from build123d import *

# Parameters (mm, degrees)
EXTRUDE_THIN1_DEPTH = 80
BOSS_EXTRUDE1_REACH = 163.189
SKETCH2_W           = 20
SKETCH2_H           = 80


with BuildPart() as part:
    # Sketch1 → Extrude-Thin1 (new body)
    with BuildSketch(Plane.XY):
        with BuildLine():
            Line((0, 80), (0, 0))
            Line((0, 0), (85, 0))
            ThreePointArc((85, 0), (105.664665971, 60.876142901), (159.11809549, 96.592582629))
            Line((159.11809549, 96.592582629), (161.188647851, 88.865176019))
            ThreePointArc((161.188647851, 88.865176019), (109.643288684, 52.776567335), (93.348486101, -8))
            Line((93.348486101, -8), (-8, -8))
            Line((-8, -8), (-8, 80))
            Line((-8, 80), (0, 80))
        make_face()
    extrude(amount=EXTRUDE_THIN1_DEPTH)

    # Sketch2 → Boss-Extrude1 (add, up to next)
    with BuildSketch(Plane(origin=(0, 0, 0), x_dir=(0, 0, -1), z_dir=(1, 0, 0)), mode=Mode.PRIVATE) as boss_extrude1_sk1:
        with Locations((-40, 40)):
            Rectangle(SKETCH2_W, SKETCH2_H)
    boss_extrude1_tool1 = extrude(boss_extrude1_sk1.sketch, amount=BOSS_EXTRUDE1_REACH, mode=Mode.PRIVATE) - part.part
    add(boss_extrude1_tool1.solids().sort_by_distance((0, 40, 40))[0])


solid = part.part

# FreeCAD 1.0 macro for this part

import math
import FreeCAD as App
import Part
import Sketcher

V = App.Vector
Q = App.Units.Quantity

doc = App.newDocument("Part")
body = doc.addObject("PartDesign::Body", "Body")

sketch1 = body.newObject("Sketcher::SketchObject", "Sketch")
sketch1.AttachmentSupport = (doc.getObject("XY_Plane"), [""])
sketch1.MapMode = "FlatFace"
sketch1.addGeometry([
    Part.LineSegment(V(0, 0, 0), V(0, 80, 0)),
    Part.LineSegment(V(0, 80, 0), V(-8, 80, 0)),
    Part.LineSegment(V(-8, 80, 0), V(-8, -8, 0)),
    Part.LineSegment(V(-8, -8, 0), V(93.348486, -8, 0)),
    Part.ArcOfCircle(Part.Circle(V(185, 0, 0), V(0, 0, 1), 92), math.radians(105), math.radians(184.988542)),
    Part.LineSegment(V(161.188648, 88.865176, 0), V(159.118095, 96.592583, 0)),
    Part.ArcOfCircle(Part.Circle(V(185, 0, 0), V(0, 0, 1), 100), math.radians(105), math.radians(180)),
    Part.LineSegment(V(85, 0, 0), V(0, 0, 0)),
], False)
sketch1.addConstraint([
    Sketcher.Constraint("Coincident", 0, 2, 1, 1),
    Sketcher.Constraint("Coincident", 1, 2, 2, 1),
    Sketcher.Constraint("Coincident", 2, 2, 3, 1),
    Sketcher.Constraint("Coincident", 3, 2, 4, 2),
    Sketcher.Constraint("Coincident", 4, 1, 5, 1),
    Sketcher.Constraint("Coincident", 5, 2, 6, 1),
    Sketcher.Constraint("Coincident", 6, 2, 7, 1),
    Sketcher.Constraint("Coincident", 7, 2, 0, 1),
    Sketcher.Constraint("Vertical", 0),
    Sketcher.Constraint("Horizontal", 1),
    Sketcher.Constraint("Vertical", 2),
    Sketcher.Constraint("Horizontal", 3),
    Sketcher.Constraint("Horizontal", 7),
    Sketcher.Constraint("Coincident", 7, 2, -1, 1),
    Sketcher.Constraint("Coincident", 6, 3, 4, 3),
    Sketcher.Constraint("PointOnObject", 4, 3, -1),
    Sketcher.Constraint("Radius", 4, Q("92 mm")),
    Sketcher.Constraint("Radius", 6, Q("100 mm")),
    Sketcher.Constraint("DistanceX", 1, 2, 1, 1, Q("8 mm")),
    Sketcher.Constraint("DistanceX", 7, 2, 7, 1, Q("85 mm")),
    Sketcher.Constraint("DistanceY", 0, 1, 0, 2, Q("80 mm")),
    Sketcher.Constraint("DistanceY", 2, 2, 2, 1, Q("88 mm")),
    Sketcher.Constraint("Angle", 5, Q("105 deg")),
    Sketcher.Constraint("DistanceX", 3, 2, 4, 1, Q("67.840162 mm")),
])
pad1 = body.newObject("PartDesign::Pad", "Pad")
pad1.Profile = sketch1
pad1.Length = 80

sketch2 = body.newObject("Sketcher::SketchObject", "Sketch001")
sketch2.AttachmentSupport = (doc.getObject("YZ_Plane"), [""])
sketch2.MapMode = "FlatFace"
sketch2.addGeometry([
    Part.LineSegment(V(80, 50, 0), V(0, 50, 0)),
    Part.LineSegment(V(0, 50, 0), V(0, 30, 0)),
    Part.LineSegment(V(0, 30, 0), V(80, 30, 0)),
    Part.LineSegment(V(80, 30, 0), V(80, 50, 0)),
], False)
sketch2.addConstraint([
    Sketcher.Constraint("Coincident", 0, 2, 1, 1),
    Sketcher.Constraint("Coincident", 1, 2, 2, 1),
    Sketcher.Constraint("Coincident", 2, 2, 3, 1),
    Sketcher.Constraint("Coincident", 3, 2, 0, 1),
    Sketcher.Constraint("Horizontal", 0),
    Sketcher.Constraint("Vertical", 1),
    Sketcher.Constraint("Horizontal", 2),
    Sketcher.Constraint("Vertical", 3),
    Sketcher.Constraint("PointOnObject", 0, 2, -2),
    Sketcher.Constraint("DistanceX", 0, 2, 0, 1, Q("80 mm")),
    Sketcher.Constraint("DistanceY", 1, 2, 1, 1, Q("20 mm")),
    Sketcher.Constraint("DistanceY", -1, 1, 0, 2, Q("50 mm")),
])
pad2 = body.newObject("PartDesign::Pad", "Pad001")
pad2.Profile = sketch2
pad2.Type = "UpToFirst"

doc.recompute()
